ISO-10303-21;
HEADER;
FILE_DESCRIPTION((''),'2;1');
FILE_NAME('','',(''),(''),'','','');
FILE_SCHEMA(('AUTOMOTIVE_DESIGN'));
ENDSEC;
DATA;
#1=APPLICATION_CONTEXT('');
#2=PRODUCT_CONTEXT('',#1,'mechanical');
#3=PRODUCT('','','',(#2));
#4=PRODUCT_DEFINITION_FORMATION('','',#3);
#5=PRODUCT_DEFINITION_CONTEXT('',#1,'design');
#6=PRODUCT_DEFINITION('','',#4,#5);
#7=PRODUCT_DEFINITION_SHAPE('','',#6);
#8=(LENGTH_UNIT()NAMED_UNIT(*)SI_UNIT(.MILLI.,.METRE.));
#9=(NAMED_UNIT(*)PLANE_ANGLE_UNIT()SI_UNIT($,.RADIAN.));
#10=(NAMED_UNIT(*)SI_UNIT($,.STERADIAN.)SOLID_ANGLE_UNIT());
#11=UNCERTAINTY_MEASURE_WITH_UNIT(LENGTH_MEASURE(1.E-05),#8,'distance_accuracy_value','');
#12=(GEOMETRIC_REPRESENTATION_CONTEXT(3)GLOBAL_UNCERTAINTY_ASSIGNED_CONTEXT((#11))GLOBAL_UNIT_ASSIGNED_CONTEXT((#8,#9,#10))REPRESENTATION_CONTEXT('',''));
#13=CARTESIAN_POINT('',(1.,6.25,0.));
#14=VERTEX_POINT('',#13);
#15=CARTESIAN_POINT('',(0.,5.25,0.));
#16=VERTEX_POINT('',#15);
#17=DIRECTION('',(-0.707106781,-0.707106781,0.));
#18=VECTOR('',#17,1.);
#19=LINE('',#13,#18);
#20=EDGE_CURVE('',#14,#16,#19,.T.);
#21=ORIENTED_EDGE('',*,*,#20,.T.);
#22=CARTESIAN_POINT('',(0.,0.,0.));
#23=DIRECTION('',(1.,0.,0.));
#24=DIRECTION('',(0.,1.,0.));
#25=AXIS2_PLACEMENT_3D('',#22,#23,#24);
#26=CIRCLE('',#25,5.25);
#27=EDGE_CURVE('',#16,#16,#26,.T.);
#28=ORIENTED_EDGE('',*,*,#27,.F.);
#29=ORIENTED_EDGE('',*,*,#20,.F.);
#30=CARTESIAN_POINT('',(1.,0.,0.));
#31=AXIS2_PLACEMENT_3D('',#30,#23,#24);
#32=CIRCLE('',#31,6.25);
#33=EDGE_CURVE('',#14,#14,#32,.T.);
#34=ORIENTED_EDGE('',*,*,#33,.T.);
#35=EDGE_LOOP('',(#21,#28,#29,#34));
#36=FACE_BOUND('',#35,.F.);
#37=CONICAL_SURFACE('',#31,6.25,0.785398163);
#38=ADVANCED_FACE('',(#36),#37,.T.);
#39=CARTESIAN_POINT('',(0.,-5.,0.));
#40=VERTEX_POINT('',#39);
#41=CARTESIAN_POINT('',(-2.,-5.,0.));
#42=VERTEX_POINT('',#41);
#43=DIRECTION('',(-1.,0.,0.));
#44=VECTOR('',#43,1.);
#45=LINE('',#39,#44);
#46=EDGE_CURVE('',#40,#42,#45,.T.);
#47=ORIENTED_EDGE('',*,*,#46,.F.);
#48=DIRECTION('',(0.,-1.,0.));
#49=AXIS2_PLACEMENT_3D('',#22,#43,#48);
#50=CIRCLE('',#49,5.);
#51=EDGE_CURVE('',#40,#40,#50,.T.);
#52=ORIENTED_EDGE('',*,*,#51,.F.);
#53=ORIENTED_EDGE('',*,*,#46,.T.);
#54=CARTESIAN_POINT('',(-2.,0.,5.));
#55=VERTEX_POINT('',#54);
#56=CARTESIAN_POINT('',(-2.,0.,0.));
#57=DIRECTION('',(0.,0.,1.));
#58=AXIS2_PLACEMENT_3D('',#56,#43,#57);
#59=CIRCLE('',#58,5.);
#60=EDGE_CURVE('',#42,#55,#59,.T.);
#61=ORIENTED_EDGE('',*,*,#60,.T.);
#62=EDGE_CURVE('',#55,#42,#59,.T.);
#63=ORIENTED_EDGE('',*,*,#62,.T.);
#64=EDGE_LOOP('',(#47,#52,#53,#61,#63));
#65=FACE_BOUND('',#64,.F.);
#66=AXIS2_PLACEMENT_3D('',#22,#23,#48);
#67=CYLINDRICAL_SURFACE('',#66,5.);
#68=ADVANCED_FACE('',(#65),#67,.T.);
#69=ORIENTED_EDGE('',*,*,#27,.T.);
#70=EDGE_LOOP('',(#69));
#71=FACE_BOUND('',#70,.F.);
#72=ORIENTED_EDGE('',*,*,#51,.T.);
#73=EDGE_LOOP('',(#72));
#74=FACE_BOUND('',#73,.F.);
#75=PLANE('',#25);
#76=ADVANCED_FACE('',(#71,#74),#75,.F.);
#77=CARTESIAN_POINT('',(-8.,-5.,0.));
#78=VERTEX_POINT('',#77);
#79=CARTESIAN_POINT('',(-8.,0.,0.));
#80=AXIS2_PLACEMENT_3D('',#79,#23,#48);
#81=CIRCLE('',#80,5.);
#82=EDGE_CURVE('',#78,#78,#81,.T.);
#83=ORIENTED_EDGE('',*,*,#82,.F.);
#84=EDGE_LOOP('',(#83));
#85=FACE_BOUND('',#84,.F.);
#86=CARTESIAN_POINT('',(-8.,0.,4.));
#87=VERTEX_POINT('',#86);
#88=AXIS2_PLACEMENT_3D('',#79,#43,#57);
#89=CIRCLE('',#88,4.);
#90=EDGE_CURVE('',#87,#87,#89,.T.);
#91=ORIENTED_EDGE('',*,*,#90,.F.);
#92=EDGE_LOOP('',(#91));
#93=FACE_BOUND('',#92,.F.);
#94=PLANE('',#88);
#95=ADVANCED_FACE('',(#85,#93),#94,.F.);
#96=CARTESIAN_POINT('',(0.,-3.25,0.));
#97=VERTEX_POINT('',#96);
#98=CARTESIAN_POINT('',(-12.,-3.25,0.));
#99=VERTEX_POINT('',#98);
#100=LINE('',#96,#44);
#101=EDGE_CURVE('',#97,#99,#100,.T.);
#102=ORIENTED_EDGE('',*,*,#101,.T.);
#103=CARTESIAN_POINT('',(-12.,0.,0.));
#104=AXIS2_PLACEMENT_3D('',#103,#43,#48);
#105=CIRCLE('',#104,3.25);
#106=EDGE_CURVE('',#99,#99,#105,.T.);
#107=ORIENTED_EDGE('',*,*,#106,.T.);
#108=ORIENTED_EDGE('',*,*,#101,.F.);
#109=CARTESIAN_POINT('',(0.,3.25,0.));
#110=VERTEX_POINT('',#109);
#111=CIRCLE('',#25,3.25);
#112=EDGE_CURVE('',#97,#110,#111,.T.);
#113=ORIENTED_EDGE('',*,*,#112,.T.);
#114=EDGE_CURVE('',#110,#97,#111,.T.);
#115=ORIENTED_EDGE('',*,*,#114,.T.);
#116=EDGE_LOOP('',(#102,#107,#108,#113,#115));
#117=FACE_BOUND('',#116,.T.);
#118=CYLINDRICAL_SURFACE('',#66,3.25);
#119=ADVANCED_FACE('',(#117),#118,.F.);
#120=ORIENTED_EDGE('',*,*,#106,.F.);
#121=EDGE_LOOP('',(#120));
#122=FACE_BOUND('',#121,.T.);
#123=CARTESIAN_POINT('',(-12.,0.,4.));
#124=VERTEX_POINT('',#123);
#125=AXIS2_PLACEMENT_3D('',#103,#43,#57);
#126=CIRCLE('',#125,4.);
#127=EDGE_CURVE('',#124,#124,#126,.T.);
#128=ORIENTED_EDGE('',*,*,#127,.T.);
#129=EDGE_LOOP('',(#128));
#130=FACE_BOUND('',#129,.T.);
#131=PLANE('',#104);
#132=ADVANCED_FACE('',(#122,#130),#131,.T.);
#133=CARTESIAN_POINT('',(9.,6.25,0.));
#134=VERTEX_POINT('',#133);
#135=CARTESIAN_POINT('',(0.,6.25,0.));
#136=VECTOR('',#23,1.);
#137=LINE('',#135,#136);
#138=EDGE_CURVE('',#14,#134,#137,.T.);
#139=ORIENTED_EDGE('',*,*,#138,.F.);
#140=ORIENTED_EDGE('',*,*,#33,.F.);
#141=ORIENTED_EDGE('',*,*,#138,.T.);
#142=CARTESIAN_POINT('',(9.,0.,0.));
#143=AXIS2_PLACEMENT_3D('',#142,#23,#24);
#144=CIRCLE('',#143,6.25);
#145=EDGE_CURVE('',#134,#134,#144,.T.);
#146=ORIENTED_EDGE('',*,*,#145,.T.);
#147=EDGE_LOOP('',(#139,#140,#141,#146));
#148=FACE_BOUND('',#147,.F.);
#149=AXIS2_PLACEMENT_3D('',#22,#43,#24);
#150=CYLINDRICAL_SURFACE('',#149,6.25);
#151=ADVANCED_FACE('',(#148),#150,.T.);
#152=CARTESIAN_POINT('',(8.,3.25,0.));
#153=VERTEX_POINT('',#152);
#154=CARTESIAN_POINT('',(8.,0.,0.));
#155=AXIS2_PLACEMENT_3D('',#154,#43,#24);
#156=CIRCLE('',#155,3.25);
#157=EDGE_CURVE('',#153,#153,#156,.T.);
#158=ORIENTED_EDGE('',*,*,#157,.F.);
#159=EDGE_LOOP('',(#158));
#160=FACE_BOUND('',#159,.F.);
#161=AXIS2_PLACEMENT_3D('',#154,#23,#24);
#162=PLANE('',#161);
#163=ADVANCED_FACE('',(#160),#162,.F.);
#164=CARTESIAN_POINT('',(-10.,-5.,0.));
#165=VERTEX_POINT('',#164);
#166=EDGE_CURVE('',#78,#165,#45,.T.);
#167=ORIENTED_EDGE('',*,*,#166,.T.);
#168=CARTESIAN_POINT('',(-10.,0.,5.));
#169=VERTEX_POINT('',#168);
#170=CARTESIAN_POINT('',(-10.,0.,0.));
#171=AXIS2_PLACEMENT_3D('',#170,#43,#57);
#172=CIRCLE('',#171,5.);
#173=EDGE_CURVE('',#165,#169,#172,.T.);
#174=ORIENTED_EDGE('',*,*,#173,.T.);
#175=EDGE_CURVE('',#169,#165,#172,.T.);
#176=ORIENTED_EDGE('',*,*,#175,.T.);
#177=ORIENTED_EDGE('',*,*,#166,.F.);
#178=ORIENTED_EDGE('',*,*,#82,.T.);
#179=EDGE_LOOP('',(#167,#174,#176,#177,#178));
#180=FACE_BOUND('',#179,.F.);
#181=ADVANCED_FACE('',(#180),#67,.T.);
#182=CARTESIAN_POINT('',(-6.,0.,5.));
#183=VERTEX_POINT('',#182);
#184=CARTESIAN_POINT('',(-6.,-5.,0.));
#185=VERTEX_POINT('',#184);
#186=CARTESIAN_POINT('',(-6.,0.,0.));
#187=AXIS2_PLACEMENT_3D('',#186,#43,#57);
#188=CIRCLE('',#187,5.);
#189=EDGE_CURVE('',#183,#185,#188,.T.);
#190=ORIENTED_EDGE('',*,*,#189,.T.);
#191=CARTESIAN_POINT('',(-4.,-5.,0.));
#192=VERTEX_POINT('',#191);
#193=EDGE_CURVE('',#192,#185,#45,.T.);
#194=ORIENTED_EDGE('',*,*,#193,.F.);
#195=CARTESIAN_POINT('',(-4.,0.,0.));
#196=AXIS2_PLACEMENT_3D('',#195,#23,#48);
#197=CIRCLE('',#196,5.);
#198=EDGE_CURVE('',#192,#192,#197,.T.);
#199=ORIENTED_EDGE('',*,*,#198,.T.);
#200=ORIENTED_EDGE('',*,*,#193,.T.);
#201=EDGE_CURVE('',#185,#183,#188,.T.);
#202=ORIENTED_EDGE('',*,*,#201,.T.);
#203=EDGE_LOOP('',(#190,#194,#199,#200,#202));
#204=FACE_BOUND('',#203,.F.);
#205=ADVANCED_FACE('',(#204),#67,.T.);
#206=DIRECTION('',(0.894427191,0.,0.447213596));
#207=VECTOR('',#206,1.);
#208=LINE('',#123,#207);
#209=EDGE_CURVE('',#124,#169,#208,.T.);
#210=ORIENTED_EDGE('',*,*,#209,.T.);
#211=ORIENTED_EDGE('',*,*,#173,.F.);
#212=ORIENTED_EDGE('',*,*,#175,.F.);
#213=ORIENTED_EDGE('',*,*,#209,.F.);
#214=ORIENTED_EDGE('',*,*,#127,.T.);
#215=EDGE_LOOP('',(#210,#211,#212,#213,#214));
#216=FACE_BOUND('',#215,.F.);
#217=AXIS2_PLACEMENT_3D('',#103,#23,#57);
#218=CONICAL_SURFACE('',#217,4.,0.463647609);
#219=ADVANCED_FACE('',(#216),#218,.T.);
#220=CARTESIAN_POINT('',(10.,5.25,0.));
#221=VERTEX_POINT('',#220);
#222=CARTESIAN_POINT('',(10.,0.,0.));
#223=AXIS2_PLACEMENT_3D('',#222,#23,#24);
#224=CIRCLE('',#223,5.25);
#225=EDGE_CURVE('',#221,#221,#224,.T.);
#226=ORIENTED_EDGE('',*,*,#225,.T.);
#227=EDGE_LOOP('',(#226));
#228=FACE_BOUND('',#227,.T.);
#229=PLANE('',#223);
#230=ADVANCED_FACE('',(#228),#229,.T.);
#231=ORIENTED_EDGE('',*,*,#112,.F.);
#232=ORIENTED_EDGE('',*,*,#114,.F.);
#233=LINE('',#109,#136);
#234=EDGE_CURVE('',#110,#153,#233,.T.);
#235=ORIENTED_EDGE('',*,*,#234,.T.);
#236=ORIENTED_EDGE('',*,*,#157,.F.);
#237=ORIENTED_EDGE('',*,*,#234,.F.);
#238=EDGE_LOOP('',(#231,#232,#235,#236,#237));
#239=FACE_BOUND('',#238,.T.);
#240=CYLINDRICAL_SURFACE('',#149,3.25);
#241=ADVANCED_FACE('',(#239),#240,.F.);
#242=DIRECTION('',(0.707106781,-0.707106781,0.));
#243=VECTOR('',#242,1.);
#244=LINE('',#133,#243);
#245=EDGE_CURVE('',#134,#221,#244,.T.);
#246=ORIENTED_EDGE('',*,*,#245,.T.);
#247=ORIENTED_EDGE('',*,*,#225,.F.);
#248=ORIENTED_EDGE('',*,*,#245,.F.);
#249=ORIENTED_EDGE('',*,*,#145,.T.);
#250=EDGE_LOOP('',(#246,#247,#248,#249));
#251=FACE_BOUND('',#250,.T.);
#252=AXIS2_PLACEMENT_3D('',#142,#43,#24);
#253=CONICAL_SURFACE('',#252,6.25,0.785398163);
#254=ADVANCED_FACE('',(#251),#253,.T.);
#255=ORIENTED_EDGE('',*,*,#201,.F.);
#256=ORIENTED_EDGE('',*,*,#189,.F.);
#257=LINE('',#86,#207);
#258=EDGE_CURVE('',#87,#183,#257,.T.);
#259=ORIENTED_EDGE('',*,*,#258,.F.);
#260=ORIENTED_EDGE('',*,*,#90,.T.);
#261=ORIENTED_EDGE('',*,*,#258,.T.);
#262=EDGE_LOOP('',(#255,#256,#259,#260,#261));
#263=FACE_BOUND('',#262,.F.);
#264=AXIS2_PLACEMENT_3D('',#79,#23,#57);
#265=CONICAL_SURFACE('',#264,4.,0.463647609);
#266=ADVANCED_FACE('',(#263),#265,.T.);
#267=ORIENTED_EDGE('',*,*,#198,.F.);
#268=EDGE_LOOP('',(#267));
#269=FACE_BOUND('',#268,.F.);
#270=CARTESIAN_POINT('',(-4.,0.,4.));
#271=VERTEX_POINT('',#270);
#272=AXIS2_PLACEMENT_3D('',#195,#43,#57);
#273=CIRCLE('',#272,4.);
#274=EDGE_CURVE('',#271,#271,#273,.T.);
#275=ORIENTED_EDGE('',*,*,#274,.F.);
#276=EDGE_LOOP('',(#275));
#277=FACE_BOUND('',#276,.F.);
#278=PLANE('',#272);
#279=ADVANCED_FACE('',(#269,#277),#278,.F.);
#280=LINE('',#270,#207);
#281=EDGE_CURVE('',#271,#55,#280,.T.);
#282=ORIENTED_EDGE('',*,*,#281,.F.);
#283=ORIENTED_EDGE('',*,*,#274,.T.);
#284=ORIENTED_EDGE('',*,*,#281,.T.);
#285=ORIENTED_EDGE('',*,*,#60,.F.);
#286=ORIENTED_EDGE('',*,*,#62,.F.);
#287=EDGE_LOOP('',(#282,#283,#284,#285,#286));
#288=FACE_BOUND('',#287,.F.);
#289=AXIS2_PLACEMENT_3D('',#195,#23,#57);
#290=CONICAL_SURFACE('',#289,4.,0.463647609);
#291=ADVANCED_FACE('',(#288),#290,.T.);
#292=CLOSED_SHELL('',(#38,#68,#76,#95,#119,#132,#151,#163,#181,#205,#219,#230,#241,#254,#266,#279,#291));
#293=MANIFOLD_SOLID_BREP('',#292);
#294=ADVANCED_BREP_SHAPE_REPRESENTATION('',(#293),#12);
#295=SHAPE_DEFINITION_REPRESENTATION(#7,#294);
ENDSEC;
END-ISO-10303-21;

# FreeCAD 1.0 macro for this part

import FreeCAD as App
import Part
import Sketcher
Q = App.Units.Quantity


def edges_at(feature, points):
    """Names of the edges that pass closest to the given points."""
    edges = feature.Shape.Edges
    near = lambda p: min(range(len(edges)), key=lambda i: edges[i].distToShape(Part.Vertex(*p))[0])
    return sorted({f"Edge{near(p) + 1}" for p in points})

doc = App.newDocument("Part")
body = doc.addObject("PartDesign::Body", "Body")

# Sketch on YZ plane
sketch1 = body.newObject("Sketcher::SketchObject", "Sketch")
sketch1.AttachmentSupport = (doc.getObject("YZ_Plane"), [""])
sketch1.MapMode = "FlatFace"
sketch1.addGeometry([
    Part.Circle(App.Vector(0, 0, 0), App.Vector(0, 0, 1), 6.25),
    Part.Circle(App.Vector(0, 0, 0), App.Vector(0, 0, 1), 3.25),
], False)
sketch1.addConstraint([
    Sketcher.Constraint("Coincident", 0, 3, -1, 1),
    Sketcher.Constraint("Coincident", 1, 3, -1, 1),
    Sketcher.Constraint("Diameter", 0, Q("12.5 mm")),
    Sketcher.Constraint("Diameter", 1, Q("6.5 mm")),
])
pad1 = body.newObject("PartDesign::Pad", "Pad")
pad1.Profile = sketch1
pad1.Length = 10

# Sketch on YZ plane
sketch2 = body.newObject("Sketcher::SketchObject", "Sketch001")
sketch2.AttachmentSupport = (doc.getObject("YZ_Plane"), [""])
sketch2.MapMode = "FlatFace"
sketch2.addGeometry([
    Part.Circle(App.Vector(0, 0, 0), App.Vector(0, 0, 1), 5),
    Part.Circle(App.Vector(0, 0, 0), App.Vector(0, 0, 1), 3.25),
], False)
sketch2.addConstraint([
    Sketcher.Constraint("Coincident", 0, 3, -1, 1),
    Sketcher.Constraint("Coincident", 1, 3, -1, 1),
    Sketcher.Constraint("Diameter", 0, Q("10 mm")),
    Sketcher.Constraint("Diameter", 1, Q("6.5 mm")),
])
pad2 = body.newObject("PartDesign::Pad", "Pad001")
pad2.Profile = sketch2
pad2.Length = 12
pad2.Reversed = True

# Sketch on XZ plane
sketch3 = body.newObject("Sketcher::SketchObject", "Sketch002")
sketch3.AttachmentSupport = (doc.getObject("XZ_Plane"), [""])
sketch3.MapMode = "FlatFace"
sketch3.addGeometry([
    Part.LineSegment(App.Vector(-10, 5, 0), App.Vector(-12, 5, 0)),  # 0
    Part.LineSegment(App.Vector(-12, 5, 0), App.Vector(-12, 4, 0)),  # 1
    Part.LineSegment(App.Vector(-12, 4, 0), App.Vector(-10, 5, 0)),  # 2
    Part.LineSegment(App.Vector(-8, 4, 0), App.Vector(-6, 5, 0)),  # 3
    Part.LineSegment(App.Vector(-6, 5, 0), App.Vector(-8, 5, 0)),  # 4
    Part.LineSegment(App.Vector(-8, 5, 0), App.Vector(-8, 4, 0)),  # 5
    Part.LineSegment(App.Vector(-4, 4, 0), App.Vector(-2, 5, 0)),  # 6
    Part.LineSegment(App.Vector(-2, 5, 0), App.Vector(-4, 5, 0)),  # 7
    Part.LineSegment(App.Vector(-4, 5, 0), App.Vector(-4, 4, 0)),  # 8
], False)
sketch3.addConstraint([
    Sketcher.Constraint("Coincident", 0, 2, 1, 1),
    Sketcher.Constraint("Coincident", 1, 2, 2, 1),
    Sketcher.Constraint("Coincident", 2, 2, 0, 1),
    Sketcher.Constraint("Coincident", 3, 2, 4, 1),
    Sketcher.Constraint("Coincident", 4, 2, 5, 1),
    Sketcher.Constraint("Coincident", 5, 2, 3, 1),
    Sketcher.Constraint("Coincident", 6, 2, 7, 1),
    Sketcher.Constraint("Coincident", 7, 2, 8, 1),
    Sketcher.Constraint("Coincident", 8, 2, 6, 1),
    Sketcher.Constraint("Horizontal", 0),
    Sketcher.Constraint("Vertical", 1),
    Sketcher.Constraint("Horizontal", 4),
    Sketcher.Constraint("Vertical", 5),
    Sketcher.Constraint("Horizontal", 7),
    Sketcher.Constraint("Vertical", 8),
    Sketcher.Constraint("Parallel", 2, 3),
    Sketcher.Constraint("Parallel", 3, 6),
    Sketcher.Constraint("Horizontal", 2, 2, 3, 2),
    Sketcher.Constraint("Horizontal", 1, 2, 5, 2),
    Sketcher.Constraint("Horizontal", 4, 2, 6, 2),
    Sketcher.Constraint("Horizontal", 5, 2, 8, 2),
    Sketcher.Constraint("DistanceX", 0, 2, 0, 1, Q("2 mm")),
    Sketcher.Constraint("DistanceY", 1, 2, 1, 1, Q("1 mm")),
    Sketcher.Constraint("DistanceX", 0, 2, -1, 1, Q("12 mm")),
    Sketcher.Constraint("DistanceY", -1, 1, 0, 2, Q("5 mm")),
    Sketcher.Constraint("DistanceX", 3, 2, -1, 1, Q("6 mm")),
    Sketcher.Constraint("DistanceX", 6, 2, -1, 1, Q("2 mm")),
])
groove = body.newObject("PartDesign::Groove", "Groove")
groove.Profile = sketch3
groove.ReferenceAxis = (sketch3, ["H_Axis"])
groove.Angle = 360

# Sketch on YZ plane
sketch4 = body.newObject("Sketcher::SketchObject", "Sketch003")
sketch4.AttachmentSupport = (doc.getObject("YZ_Plane"), [""])
sketch4.MapMode = "FlatFace"
sketch4.AttachmentOffset = App.Placement(App.Vector(0, 0, 10), App.Rotation())
sketch4.addGeometry(Part.Circle(App.Vector(0, 0, 0), App.Vector(0, 0, 1), 6.25), False)
sketch4.addConstraint([
    Sketcher.Constraint("Coincident", 0, 3, -1, 1),
    Sketcher.Constraint("Diameter", 0, Q("12.5 mm")),
])
pad3 = body.newObject("PartDesign::Pad", "Pad002")
pad3.Profile = sketch4
pad3.Length = 2
pad3.Reversed = True
doc.recompute()

chamfer = body.newObject("PartDesign::Chamfer", "Chamfer")
chamfer.Base = (pad3, edges_at(pad3, [(10, -6.25, 0), (0, -6.25, 0)]))
chamfer.Size = 1

doc.recompute()
